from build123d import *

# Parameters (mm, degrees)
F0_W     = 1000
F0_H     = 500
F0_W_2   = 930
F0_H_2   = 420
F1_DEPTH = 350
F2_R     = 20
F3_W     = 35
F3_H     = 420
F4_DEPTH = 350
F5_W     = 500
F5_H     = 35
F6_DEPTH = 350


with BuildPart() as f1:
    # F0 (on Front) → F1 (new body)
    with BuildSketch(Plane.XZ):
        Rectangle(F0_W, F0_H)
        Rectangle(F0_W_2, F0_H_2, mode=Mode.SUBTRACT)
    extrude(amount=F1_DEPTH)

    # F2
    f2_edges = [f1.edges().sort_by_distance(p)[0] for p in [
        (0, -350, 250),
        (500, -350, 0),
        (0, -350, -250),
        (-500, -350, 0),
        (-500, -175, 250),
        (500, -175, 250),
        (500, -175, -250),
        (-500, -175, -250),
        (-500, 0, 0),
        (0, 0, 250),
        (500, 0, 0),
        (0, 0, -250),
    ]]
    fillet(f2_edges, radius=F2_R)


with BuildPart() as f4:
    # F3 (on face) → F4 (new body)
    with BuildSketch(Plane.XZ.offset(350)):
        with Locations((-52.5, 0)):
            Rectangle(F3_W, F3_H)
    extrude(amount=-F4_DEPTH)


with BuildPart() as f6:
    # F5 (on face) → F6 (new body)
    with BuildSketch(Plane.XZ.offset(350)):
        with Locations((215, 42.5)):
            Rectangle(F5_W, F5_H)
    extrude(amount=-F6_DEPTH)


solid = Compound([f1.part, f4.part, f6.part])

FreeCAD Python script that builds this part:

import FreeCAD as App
import Part
import Sketcher
from FreeCAD import Vector


def edges_at(feature, points):
    """Names of the edges that pass closest to the given points."""
    edges = feature.Shape.Edges
    near = lambda p: min(range(len(edges)), key=lambda i: edges[i].distToShape(Part.Vertex(*p))[0])
    return sorted({f"Edge{near(p) + 1}" for p in points})

doc = App.newDocument("Part")
params = doc.addObject("Spreadsheet::Sheet", "Params")
for row, (alias, value) in enumerate([
    ("sketch1_width", "1000 mm"),
    ("sketch1_width2", "930 mm"),
    ("sketch1_height", "500 mm"),
    ("sketch1_height2", "420 mm"),
    ("pad1_length", "350 mm"),
    ("fillet_radius", "20 mm"),
    ("sketch2_width", "35 mm"),
    ("sketch2_height", "420 mm"),
    ("pad2_length", "350 mm"),
    ("sketch3_width", "500 mm"),
    ("sketch3_height", "35 mm"),
    ("pad3_length", "350 mm"),
], start=1):
    params.set(f"A{row}", alias)
    params.set(f"B{row}", "=" + value)
    params.setAlias(f"B{row}", alias)

body = doc.addObject("PartDesign::Body", "Body")

# Sketch on XZ plane
sketch1 = body.newObject("Sketcher::SketchObject", "Sketch")
sketch1.AttachmentSupport = (doc.getObject("XZ_Plane"), [""])
sketch1.MapMode = "FlatFace"
sketch1.addGeometry([
    Part.LineSegment(Vector(-500, 250, 0), Vector(-500, -250, 0)),  # 0
    Part.LineSegment(Vector(-500, -250, 0), Vector(500, -250, 0)),  # 1
    Part.LineSegment(Vector(500, -250, 0), Vector(500, 250, 0)),  # 2
    Part.LineSegment(Vector(500, 250, 0), Vector(-500, 250, 0)),  # 3
    Part.LineSegment(Vector(465, -210, 0), Vector(-465, -210, 0)),  # 4
    Part.LineSegment(Vector(-465, -210, 0), Vector(-465, 210, 0)),  # 5
    Part.LineSegment(Vector(-465, 210, 0), Vector(465, 210, 0)),  # 6
    Part.LineSegment(Vector(465, 210, 0), Vector(465, -210, 0)),  # 7
], False)
sketch1.addConstraint([
    Sketcher.Constraint("Coincident", 0, 2, 1, 1),
    Sketcher.Constraint("Coincident", 1, 2, 2, 1),
    Sketcher.Constraint("Coincident", 2, 2, 3, 1),
    Sketcher.Constraint("Coincident", 3, 2, 0, 1),
    Sketcher.Constraint("Coincident", 4, 2, 5, 1),
    Sketcher.Constraint("Coincident", 5, 2, 6, 1),
    Sketcher.Constraint("Coincident", 6, 2, 7, 1),
    Sketcher.Constraint("Coincident", 7, 2, 4, 1),
    Sketcher.Constraint("Vertical", 0),
    Sketcher.Constraint("Horizontal", 1),
    Sketcher.Constraint("Vertical", 2),
    Sketcher.Constraint("Horizontal", 3),
    Sketcher.Constraint("Horizontal", 4),
    Sketcher.Constraint("Vertical", 5),
    Sketcher.Constraint("Horizontal", 6),
    Sketcher.Constraint("Vertical", 7),
    Sketcher.Constraint("Symmetric", 0, 2, 2, 2, -1, 1),
    Sketcher.Constraint("Symmetric", 4, 2, 6, 2, -1, 1),
    Sketcher.Constraint("DistanceX", 1, 1, 1, 2, 1000.0),
    Sketcher.Constraint("DistanceX", 4, 2, 4, 1, 930.0),
    Sketcher.Constraint("DistanceY", 0, 2, 0, 1, 500.0),
    Sketcher.Constraint("DistanceY", 5, 1, 5, 2, 420.0),
])
sketch1.setExpression("Constraints[18]", "Params.sketch1_width")
sketch1.setExpression("Constraints[19]", "Params.sketch1_width2")
sketch1.setExpression("Constraints[20]", "Params.sketch1_height")
sketch1.setExpression("Constraints[21]", "Params.sketch1_height2")
pad1 = body.newObject("PartDesign::Pad", "Pad")
pad1.Profile = sketch1
pad1.setExpression("Length", "Params.pad1_length")
doc.recompute()

fillet = body.newObject("PartDesign::Fillet", "Fillet")
fillet.Base = (pad1, edges_at(pad1, [
    (0, -350, 250),
    (500, -350, 0),
    (0, -350, -250),
    (-500, -350, 0),
    (-500, -175, 250),
    (500, -175, 250),
    (500, -175, -250),
    (-500, -175, -250),
    (-500, 0, 0),
    (0, 0, 250),
    (500, 0, 0),
    (0, 0, -250),
]))
fillet.setExpression("Radius", "Params.fillet_radius")
body2 = doc.addObject("PartDesign::Body", "Body001")

# Sketch on XZ plane
sketch2 = body2.newObject("Sketcher::SketchObject", "Sketch001")
sketch2.AttachmentSupport = (doc.getObject("XZ_Plane001"), [""])
sketch2.MapMode = "FlatFace"
sketch2.AttachmentOffset = App.Placement(Vector(0, 0, 350), App.Rotation())
sketch2.addGeometry([
    Part.LineSegment(Vector(-70, 210, 0), Vector(-70, -210, 0)),
    Part.LineSegment(Vector(-70, -210, 0), Vector(-35, -210, 0)),
    Part.LineSegment(Vector(-35, -210, 0), Vector(-35, 210, 0)),
    Part.LineSegment(Vector(-35, 210, 0), Vector(-70, 210, 0)),
], False)
sketch2.addConstraint([
    Sketcher.Constraint("Coincident", 0, 2, 1, 1),
    Sketcher.Constraint("Coincident", 1, 2, 2, 1),
    Sketcher.Constraint("Coincident", 2, 2, 3, 1),
    Sketcher.Constraint("Coincident", 3, 2, 0, 1),
    Sketcher.Constraint("Vertical", 0),
    Sketcher.Constraint("Horizontal", 1),
    Sketcher.Constraint("Vertical", 2),
    Sketcher.Constraint("Horizontal", 3),
    Sketcher.Constraint("DistanceX", 1, 1, 1, 2, 35.0),
    Sketcher.Constraint("DistanceY", 0, 2, 0, 1, 420.0),
    Sketcher.Constraint("DistanceX", 0, 2, -1, 1, 70.0),
    Sketcher.Constraint("DistanceY", 0, 2, -1, 1, 210.0),
])
sketch2.setExpression("Constraints[8]", "Params.sketch2_width")
sketch2.setExpression("Constraints[9]", "Params.sketch2_height")
pad2 = body2.newObject("PartDesign::Pad", "Pad001")
pad2.Profile = sketch2
pad2.setExpression("Length", "Params.pad2_length")
pad2.Reversed = True
body3 = doc.addObject("PartDesign::Body", "Body002")

# Sketch on XZ plane
sketch3 = body3.newObject("Sketcher::SketchObject", "Sketch002")
sketch3.AttachmentSupport = (doc.getObject("XZ_Plane002"), [""])
sketch3.MapMode = "FlatFace"
sketch3.AttachmentOffset = App.Placement(Vector(0, 0, 350), App.Rotation())
sketch3.addGeometry([
    Part.LineSegment(Vector(-35, 60, 0), Vector(-35, 25, 0)),
    Part.LineSegment(Vector(-35, 25, 0), Vector(465, 25, 0)),
    Part.LineSegment(Vector(465, 25, 0), Vector(465, 60, 0)),
    Part.LineSegment(Vector(465, 60, 0), Vector(-35, 60, 0)),
], False)
sketch3.addConstraint([
    Sketcher.Constraint("Coincident", 0, 2, 1, 1),
    Sketcher.Constraint("Coincident", 1, 2, 2, 1),
    Sketcher.Constraint("Coincident", 2, 2, 3, 1),
    Sketcher.Constraint("Coincident", 3, 2, 0, 1),
    Sketcher.Constraint("Vertical", 0),
    Sketcher.Constraint("Horizontal", 1),
    Sketcher.Constraint("Vertical", 2),
    Sketcher.Constraint("Horizontal", 3),
    Sketcher.Constraint("DistanceX", 1, 1, 1, 2, 500.0),
    Sketcher.Constraint("DistanceY", 0, 2, 0, 1, 35.0),
    Sketcher.Constraint("DistanceX", 0, 2, -1, 1, 35.0),
    Sketcher.Constraint("DistanceY", -1, 1, 0, 2, 25.0),
])
sketch3.setExpression("Constraints[8]", "Params.sketch3_width")
sketch3.setExpression("Constraints[9]", "Params.sketch3_height")
pad3 = body3.newObject("PartDesign::Pad", "Pad002")
pad3.Profile = sketch3
pad3.setExpression("Length", "Params.pad3_length")
pad3.Reversed = True

doc.recompute()
